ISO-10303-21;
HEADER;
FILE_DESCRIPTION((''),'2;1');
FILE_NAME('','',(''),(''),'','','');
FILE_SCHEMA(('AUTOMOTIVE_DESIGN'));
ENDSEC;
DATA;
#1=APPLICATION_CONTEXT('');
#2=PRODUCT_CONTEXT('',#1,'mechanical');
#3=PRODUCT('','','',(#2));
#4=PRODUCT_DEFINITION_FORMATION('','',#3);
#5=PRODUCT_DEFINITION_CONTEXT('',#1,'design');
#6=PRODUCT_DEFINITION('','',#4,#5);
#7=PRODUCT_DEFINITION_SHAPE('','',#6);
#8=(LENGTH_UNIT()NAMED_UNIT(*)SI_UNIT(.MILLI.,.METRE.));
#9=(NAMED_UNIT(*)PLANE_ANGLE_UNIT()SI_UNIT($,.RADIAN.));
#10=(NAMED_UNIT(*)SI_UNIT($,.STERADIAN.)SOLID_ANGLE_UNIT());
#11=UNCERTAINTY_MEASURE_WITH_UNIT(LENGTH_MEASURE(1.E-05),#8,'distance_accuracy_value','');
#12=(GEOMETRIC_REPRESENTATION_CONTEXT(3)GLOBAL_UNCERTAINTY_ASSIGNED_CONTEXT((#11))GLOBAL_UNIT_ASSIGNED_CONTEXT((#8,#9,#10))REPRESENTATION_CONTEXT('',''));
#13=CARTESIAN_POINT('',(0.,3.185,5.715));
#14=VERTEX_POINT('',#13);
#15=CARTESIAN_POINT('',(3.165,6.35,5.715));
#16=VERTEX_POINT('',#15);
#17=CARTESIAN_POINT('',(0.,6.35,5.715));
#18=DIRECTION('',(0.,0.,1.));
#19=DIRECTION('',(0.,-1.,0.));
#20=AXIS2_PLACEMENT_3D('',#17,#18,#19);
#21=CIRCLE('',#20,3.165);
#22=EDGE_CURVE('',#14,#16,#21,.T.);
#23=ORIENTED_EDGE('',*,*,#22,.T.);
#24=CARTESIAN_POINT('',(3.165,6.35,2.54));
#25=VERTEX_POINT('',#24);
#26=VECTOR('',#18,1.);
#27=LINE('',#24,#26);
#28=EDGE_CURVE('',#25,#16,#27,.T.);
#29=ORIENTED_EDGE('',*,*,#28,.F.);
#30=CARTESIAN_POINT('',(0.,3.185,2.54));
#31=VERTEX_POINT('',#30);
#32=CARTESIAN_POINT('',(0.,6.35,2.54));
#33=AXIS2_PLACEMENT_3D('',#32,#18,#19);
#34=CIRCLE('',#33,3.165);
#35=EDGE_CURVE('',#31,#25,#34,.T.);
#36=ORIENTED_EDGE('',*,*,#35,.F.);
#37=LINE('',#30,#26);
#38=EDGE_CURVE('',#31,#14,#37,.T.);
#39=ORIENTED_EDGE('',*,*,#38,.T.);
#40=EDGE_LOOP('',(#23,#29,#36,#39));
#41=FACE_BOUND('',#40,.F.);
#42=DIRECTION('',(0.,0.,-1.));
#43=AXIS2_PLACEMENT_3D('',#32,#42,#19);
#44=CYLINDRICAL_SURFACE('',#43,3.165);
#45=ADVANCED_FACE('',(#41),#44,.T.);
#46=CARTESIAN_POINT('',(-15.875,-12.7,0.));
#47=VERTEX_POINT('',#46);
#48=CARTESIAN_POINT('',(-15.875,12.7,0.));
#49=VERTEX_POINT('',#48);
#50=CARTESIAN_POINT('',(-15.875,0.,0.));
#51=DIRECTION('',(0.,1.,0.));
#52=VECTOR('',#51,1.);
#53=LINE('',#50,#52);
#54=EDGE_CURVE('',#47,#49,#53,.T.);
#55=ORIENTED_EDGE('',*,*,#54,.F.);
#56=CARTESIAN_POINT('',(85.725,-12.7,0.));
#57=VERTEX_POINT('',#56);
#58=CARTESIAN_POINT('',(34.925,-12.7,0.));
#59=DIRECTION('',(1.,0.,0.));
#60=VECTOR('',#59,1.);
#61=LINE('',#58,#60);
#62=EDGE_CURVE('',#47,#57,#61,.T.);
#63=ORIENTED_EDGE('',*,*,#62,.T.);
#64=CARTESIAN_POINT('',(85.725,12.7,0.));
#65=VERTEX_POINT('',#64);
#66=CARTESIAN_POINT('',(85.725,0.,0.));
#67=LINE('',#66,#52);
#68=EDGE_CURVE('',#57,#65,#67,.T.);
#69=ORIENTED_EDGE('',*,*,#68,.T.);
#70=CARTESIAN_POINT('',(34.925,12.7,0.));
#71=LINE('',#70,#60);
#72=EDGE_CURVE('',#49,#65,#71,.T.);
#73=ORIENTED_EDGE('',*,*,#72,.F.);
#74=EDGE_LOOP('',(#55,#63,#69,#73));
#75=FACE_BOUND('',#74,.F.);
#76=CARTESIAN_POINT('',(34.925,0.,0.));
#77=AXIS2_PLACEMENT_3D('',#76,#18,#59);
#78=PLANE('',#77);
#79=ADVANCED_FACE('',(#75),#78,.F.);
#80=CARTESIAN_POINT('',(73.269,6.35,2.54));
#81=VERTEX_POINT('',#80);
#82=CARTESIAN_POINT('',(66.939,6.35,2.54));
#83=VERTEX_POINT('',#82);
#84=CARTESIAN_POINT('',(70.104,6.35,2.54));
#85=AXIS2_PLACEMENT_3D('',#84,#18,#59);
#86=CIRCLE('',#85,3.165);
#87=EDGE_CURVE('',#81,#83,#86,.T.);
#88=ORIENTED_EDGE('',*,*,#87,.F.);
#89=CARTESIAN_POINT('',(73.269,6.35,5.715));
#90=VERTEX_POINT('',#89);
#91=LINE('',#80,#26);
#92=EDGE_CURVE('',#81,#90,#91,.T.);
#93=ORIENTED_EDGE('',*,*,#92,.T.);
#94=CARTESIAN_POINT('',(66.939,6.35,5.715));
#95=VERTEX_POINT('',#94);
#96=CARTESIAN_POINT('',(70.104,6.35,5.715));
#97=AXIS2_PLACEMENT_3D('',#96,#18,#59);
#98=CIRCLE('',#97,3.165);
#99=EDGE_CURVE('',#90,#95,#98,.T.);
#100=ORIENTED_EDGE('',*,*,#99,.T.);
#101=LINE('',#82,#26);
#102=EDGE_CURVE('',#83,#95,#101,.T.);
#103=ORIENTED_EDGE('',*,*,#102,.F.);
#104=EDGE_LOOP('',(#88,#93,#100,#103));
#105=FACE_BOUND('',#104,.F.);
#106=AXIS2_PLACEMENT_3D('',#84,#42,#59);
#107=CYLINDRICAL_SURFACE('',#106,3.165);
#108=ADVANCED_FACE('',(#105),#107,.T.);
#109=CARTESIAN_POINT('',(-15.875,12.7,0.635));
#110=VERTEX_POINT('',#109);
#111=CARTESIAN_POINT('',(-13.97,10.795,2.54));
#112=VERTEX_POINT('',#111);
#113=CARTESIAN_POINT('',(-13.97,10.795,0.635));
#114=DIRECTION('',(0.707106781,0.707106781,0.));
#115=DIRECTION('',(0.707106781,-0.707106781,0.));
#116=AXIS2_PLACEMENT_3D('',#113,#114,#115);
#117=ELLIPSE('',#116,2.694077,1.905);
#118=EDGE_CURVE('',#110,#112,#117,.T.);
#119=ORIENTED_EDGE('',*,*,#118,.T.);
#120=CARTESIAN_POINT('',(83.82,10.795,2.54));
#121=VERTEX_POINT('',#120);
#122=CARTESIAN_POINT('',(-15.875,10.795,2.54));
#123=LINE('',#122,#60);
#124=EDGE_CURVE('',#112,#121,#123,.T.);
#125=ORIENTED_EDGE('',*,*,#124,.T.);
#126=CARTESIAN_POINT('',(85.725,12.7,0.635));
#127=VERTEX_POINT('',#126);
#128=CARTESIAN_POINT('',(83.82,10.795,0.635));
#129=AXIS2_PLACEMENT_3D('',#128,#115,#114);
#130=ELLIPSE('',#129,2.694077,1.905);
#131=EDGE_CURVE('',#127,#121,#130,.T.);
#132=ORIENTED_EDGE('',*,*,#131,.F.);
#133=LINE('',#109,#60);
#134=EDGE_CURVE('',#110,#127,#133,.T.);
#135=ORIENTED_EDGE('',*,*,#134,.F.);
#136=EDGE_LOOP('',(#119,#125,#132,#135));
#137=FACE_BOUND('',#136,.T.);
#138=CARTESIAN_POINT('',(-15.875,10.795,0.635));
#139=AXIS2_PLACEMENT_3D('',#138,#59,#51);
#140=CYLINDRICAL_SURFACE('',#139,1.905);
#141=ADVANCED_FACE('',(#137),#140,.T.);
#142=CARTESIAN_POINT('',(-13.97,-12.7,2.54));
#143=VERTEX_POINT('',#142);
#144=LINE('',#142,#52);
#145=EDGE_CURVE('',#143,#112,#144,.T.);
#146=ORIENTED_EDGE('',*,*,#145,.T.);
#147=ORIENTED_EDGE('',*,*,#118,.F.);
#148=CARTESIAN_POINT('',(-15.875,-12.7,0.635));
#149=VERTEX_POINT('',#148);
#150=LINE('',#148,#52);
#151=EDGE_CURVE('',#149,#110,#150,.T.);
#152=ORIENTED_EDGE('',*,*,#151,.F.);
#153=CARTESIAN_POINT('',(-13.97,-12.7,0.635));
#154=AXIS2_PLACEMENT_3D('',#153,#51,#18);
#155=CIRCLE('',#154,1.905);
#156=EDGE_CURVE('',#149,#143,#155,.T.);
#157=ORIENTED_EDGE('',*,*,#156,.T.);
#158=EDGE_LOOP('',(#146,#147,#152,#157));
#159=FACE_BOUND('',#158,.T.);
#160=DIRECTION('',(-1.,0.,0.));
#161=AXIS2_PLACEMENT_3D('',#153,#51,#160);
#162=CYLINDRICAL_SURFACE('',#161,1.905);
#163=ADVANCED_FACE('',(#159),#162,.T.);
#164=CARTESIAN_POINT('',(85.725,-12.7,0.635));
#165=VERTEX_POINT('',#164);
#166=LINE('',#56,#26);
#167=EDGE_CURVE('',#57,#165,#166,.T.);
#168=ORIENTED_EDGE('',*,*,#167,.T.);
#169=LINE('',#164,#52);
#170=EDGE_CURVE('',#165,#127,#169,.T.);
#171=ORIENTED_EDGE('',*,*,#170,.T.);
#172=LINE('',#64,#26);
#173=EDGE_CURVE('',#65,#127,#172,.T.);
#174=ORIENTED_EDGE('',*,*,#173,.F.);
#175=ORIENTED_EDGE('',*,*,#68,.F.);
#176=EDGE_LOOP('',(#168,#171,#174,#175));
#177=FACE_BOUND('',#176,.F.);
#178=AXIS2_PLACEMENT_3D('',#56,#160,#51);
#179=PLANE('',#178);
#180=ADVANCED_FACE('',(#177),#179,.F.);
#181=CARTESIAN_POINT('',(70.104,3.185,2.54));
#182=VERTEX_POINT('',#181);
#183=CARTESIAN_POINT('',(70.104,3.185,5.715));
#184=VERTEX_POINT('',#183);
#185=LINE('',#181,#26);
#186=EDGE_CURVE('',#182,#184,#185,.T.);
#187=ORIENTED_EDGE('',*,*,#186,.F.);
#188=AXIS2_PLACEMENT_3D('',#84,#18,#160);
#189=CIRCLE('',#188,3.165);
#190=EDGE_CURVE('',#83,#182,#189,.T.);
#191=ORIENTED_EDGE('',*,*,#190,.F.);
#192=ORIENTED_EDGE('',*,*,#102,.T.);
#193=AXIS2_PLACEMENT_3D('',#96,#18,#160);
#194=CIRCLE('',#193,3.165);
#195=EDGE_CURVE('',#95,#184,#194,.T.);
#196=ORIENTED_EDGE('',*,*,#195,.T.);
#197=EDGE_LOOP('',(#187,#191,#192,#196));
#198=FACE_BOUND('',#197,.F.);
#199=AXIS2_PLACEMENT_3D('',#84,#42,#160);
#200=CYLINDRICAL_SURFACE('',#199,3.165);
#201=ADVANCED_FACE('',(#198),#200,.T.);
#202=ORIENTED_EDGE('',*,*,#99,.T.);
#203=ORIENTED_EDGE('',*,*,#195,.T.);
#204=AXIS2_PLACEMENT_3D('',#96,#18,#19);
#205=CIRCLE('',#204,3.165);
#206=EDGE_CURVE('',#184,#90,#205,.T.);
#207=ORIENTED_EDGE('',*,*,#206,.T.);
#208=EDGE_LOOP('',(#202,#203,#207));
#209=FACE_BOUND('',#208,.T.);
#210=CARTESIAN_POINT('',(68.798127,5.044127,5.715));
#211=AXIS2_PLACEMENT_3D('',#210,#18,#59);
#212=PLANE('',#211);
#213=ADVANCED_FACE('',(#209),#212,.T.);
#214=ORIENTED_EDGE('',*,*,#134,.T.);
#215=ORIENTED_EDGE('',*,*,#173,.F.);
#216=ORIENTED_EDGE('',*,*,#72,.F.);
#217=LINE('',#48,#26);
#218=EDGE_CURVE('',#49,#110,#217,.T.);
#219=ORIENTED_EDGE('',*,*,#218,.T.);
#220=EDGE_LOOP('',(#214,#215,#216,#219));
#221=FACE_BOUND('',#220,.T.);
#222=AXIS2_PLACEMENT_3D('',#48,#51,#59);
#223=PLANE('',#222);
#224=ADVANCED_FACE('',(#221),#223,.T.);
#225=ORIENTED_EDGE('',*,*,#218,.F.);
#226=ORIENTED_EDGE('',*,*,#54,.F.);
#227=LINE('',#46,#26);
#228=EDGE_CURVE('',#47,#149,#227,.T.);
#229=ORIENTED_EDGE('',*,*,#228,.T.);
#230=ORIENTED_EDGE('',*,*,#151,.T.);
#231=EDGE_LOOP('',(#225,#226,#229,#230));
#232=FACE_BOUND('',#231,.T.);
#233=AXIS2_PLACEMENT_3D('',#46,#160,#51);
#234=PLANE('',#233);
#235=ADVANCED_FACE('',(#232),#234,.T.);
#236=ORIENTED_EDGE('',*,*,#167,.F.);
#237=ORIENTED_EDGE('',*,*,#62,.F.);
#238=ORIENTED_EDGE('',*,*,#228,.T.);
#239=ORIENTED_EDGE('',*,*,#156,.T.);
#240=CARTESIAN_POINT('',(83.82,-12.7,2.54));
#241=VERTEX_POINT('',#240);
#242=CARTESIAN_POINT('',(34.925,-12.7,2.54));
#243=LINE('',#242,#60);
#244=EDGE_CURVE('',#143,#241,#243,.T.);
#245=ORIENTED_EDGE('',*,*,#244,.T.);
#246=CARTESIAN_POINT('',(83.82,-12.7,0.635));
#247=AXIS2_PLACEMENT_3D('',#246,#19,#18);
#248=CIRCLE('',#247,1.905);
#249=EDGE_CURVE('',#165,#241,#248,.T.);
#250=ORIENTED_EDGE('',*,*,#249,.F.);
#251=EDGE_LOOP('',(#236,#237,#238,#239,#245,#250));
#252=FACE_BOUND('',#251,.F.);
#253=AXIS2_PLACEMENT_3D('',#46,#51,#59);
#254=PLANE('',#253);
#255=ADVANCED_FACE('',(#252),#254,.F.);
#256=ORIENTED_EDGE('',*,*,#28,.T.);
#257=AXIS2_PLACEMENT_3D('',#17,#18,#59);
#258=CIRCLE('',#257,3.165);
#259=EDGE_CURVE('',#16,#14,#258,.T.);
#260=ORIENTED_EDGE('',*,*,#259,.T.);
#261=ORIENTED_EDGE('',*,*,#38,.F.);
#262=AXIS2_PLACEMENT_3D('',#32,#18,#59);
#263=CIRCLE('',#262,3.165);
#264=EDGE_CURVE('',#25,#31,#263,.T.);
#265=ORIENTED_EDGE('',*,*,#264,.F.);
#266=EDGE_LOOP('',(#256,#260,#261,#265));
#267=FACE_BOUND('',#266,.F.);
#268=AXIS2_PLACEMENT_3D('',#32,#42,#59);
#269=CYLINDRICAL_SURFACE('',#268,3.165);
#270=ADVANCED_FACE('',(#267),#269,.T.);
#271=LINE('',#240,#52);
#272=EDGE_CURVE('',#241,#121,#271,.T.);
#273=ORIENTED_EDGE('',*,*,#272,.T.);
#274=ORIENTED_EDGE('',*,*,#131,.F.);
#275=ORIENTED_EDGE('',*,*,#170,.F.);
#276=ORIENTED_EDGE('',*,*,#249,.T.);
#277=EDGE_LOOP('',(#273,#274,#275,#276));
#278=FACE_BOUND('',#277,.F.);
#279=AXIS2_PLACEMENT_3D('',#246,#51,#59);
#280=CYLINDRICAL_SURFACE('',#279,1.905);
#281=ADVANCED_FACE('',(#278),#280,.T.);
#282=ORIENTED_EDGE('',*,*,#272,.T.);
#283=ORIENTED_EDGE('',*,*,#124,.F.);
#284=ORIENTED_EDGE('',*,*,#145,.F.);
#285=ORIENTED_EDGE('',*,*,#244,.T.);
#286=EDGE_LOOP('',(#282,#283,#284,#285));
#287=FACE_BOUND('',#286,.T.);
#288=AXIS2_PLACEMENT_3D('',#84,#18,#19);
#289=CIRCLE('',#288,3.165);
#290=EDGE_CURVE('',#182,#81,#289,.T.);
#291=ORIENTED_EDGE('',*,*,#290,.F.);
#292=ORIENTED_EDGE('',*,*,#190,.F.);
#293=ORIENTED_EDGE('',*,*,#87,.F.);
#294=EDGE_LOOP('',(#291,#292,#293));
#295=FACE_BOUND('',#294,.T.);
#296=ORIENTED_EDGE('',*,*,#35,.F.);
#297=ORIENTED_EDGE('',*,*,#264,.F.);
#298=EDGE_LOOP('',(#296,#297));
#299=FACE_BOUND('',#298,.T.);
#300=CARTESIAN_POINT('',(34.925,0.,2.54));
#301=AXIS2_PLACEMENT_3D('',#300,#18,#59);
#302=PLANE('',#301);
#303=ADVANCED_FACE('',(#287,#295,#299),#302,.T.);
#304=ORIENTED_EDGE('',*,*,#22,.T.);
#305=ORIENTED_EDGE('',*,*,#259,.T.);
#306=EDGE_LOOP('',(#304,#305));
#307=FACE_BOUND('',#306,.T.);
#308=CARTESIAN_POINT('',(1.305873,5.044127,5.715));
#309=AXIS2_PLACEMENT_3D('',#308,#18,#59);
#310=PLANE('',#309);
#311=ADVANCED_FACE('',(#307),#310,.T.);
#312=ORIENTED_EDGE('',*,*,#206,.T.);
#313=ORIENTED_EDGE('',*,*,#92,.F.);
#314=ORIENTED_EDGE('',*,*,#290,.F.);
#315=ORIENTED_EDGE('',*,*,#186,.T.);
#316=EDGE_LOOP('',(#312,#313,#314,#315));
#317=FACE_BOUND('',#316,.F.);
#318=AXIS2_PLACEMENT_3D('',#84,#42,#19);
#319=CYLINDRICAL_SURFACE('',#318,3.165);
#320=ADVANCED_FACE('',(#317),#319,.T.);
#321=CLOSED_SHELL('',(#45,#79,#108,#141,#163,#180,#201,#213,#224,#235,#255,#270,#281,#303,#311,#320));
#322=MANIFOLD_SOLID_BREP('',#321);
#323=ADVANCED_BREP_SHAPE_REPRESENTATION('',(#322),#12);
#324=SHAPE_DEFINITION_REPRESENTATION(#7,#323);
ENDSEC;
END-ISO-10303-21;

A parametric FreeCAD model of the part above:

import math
import FreeCAD as App
import Part
import Sketcher
from FreeCAD import Vector
Q = App.Units.Quantity


def edges_at(feature, points):
    """Names of the edges that pass closest to the given points."""
    edges = feature.Shape.Edges
    near = lambda p: min(range(len(edges)), key=lambda i: edges[i].distToShape(Part.Vertex(*p))[0])
    return sorted({f"Edge{near(p) + 1}" for p in points})


def add_polygon(sketch, points):
    """Adds a closed chain of lines whose ends are joined by coincident constraints."""
    first, n = sketch.GeometryCount, len(points)
    for a, b in zip(points, points[1:] + points[:1]):
        sketch.addGeometry(Part.LineSegment(App.Vector(*a, 0), App.Vector(*b, 0)), False)
    for i in range(n):
        sketch.addConstraint(Sketcher.Constraint("Coincident", first + i, 2, first + (i + 1) % n, 1))

doc = App.newDocument("Part")
body = doc.addObject("PartDesign::Body", "Body")

# Sketch on XY plane
sketch1 = doc.addObject("Sketcher::SketchObject", "Sketch")
body.addObject(sketch1)
sketch1.AttachmentSupport = (doc.XY_Plane, [""])
sketch1.MapMode = "FlatFace"
add_polygon(sketch1, [(-15.875, 12.7), (-15.875, -12.7), (85.725, -12.7), (85.725, 12.7)])  # lines 0-3
sketch1.addConstraint(Sketcher.Constraint("Vertical", 0))
sketch1.addConstraint(Sketcher.Constraint("Horizontal", 1))
sketch1.addConstraint(Sketcher.Constraint("Vertical", 2))
sketch1.addConstraint(Sketcher.Constraint("Horizontal", 3))
sketch1.addConstraint(Sketcher.Constraint("DistanceX", 1, 1, 1, 2, Q("4 in")))
sketch1.addConstraint(Sketcher.Constraint("DistanceY", 0, 2, 0, 1, Q("1 in")))
sketch1.addConstraint(Sketcher.Constraint("DistanceY", 0, 2, -1, 1, Q("0.5 in")))
sketch1.addConstraint(Sketcher.Constraint("DistanceX", 0, 2, -1, 1, Q("0.625 in")))
pad1 = doc.addObject("PartDesign::Pad", "Pad")
body.addObject(pad1)
pad1.Profile = sketch1
pad1.Length = Q("0.1 in")
doc.recompute()

fillet = doc.addObject("PartDesign::Fillet", "Fillet")
body.addObject(fillet)
fillet.Base = (pad1, edges_at(pad1, [(34.925, 12.7, 2.54), (-15.875, 0, 2.54), (85.725, 0, 2.54)]))
fillet.Radius = Q("0.075 in")

# Sketch on XY plane
sketch2 = doc.addObject("Sketcher::SketchObject", "Sketch001")
body.addObject(sketch2)
sketch2.AttachmentSupport = (doc.XY_Plane, [""])
sketch2.MapMode = "FlatFace"
sketch2.AttachmentOffset = App.Placement(Vector(0, 0, 0.1 * 25.4), App.Rotation())
sketch2.addGeometry(Part.ArcOfCircle(Part.Circle(Vector(70.104, 6.35, 0), Vector(0, 0, 1), 3.165), math.radians(180), math.radians(270)), False)
sketch2.addGeometry(Part.ArcOfCircle(Part.Circle(Vector(70.104, 6.35, 0), Vector(0, 0, 1), 3.165), math.radians(-90), math.radians(0)), False)
sketch2.addGeometry(Part.ArcOfCircle(Part.Circle(Vector(70.104, 6.35, 0), Vector(0, 0, 1), 3.165), math.radians(0), math.radians(180)), False)
sketch2.addGeometry(Part.ArcOfCircle(Part.Circle(Vector(0, 6.35, 0), Vector(0, 0, 1), 3.165), math.radians(-90), math.radians(0)), False)
sketch2.addGeometry(Part.ArcOfCircle(Part.Circle(Vector(0, 6.35, 0), Vector(0, 0, 1), 3.165), math.radians(0), math.radians(270)), False)
sketch2.addConstraint(Sketcher.Constraint("Tangent", 0, 2, 1, 1))
sketch2.addConstraint(Sketcher.Constraint("Tangent", 1, 2, 2, 1))
sketch2.addConstraint(Sketcher.Constraint("Tangent", 2, 2, 0, 1))
sketch2.addConstraint(Sketcher.Constraint("Tangent", 3, 1, 4, 2))
sketch2.addConstraint(Sketcher.Constraint("Coincident", 4, 1, 3, 2))
sketch2.addConstraint(Sketcher.Constraint("Equal", 2, 3))
sketch2.addConstraint(Sketcher.Constraint("PointOnObject", 3, 3, -2))
sketch2.addConstraint(Sketcher.Constraint("PointOnObject", 3, 1, -2))
sketch2.addConstraint(Sketcher.Constraint("Horizontal", 2, 3, 3, 3))
sketch2.addConstraint(Sketcher.Constraint("Horizontal", 4, 3, 1, 2))
sketch2.addConstraint(Sketcher.Constraint("Horizontal", 1, 2, 2, 2))
sketch2.addConstraint(Sketcher.Constraint("Horizontal", 2, 2, 4, 1))
sketch2.addConstraint(Sketcher.Constraint("Vertical", 2, 3, 0, 2))
sketch2.addConstraint(Sketcher.Constraint("DistanceX", -1, 1, 0, 3, Q("2.76 in")))
sketch2.addConstraint(Sketcher.Constraint("DistanceY", -1, 1, 0, 3, Q("0.25 in")))
sketch2.addConstraint(Sketcher.Constraint("Radius", 0, 3.165))
pad2 = doc.addObject("PartDesign::Pad", "Pad001")
body.addObject(pad2)
pad2.Profile = sketch2
pad2.Length = Q("0.125 in")

doc.recompute()
